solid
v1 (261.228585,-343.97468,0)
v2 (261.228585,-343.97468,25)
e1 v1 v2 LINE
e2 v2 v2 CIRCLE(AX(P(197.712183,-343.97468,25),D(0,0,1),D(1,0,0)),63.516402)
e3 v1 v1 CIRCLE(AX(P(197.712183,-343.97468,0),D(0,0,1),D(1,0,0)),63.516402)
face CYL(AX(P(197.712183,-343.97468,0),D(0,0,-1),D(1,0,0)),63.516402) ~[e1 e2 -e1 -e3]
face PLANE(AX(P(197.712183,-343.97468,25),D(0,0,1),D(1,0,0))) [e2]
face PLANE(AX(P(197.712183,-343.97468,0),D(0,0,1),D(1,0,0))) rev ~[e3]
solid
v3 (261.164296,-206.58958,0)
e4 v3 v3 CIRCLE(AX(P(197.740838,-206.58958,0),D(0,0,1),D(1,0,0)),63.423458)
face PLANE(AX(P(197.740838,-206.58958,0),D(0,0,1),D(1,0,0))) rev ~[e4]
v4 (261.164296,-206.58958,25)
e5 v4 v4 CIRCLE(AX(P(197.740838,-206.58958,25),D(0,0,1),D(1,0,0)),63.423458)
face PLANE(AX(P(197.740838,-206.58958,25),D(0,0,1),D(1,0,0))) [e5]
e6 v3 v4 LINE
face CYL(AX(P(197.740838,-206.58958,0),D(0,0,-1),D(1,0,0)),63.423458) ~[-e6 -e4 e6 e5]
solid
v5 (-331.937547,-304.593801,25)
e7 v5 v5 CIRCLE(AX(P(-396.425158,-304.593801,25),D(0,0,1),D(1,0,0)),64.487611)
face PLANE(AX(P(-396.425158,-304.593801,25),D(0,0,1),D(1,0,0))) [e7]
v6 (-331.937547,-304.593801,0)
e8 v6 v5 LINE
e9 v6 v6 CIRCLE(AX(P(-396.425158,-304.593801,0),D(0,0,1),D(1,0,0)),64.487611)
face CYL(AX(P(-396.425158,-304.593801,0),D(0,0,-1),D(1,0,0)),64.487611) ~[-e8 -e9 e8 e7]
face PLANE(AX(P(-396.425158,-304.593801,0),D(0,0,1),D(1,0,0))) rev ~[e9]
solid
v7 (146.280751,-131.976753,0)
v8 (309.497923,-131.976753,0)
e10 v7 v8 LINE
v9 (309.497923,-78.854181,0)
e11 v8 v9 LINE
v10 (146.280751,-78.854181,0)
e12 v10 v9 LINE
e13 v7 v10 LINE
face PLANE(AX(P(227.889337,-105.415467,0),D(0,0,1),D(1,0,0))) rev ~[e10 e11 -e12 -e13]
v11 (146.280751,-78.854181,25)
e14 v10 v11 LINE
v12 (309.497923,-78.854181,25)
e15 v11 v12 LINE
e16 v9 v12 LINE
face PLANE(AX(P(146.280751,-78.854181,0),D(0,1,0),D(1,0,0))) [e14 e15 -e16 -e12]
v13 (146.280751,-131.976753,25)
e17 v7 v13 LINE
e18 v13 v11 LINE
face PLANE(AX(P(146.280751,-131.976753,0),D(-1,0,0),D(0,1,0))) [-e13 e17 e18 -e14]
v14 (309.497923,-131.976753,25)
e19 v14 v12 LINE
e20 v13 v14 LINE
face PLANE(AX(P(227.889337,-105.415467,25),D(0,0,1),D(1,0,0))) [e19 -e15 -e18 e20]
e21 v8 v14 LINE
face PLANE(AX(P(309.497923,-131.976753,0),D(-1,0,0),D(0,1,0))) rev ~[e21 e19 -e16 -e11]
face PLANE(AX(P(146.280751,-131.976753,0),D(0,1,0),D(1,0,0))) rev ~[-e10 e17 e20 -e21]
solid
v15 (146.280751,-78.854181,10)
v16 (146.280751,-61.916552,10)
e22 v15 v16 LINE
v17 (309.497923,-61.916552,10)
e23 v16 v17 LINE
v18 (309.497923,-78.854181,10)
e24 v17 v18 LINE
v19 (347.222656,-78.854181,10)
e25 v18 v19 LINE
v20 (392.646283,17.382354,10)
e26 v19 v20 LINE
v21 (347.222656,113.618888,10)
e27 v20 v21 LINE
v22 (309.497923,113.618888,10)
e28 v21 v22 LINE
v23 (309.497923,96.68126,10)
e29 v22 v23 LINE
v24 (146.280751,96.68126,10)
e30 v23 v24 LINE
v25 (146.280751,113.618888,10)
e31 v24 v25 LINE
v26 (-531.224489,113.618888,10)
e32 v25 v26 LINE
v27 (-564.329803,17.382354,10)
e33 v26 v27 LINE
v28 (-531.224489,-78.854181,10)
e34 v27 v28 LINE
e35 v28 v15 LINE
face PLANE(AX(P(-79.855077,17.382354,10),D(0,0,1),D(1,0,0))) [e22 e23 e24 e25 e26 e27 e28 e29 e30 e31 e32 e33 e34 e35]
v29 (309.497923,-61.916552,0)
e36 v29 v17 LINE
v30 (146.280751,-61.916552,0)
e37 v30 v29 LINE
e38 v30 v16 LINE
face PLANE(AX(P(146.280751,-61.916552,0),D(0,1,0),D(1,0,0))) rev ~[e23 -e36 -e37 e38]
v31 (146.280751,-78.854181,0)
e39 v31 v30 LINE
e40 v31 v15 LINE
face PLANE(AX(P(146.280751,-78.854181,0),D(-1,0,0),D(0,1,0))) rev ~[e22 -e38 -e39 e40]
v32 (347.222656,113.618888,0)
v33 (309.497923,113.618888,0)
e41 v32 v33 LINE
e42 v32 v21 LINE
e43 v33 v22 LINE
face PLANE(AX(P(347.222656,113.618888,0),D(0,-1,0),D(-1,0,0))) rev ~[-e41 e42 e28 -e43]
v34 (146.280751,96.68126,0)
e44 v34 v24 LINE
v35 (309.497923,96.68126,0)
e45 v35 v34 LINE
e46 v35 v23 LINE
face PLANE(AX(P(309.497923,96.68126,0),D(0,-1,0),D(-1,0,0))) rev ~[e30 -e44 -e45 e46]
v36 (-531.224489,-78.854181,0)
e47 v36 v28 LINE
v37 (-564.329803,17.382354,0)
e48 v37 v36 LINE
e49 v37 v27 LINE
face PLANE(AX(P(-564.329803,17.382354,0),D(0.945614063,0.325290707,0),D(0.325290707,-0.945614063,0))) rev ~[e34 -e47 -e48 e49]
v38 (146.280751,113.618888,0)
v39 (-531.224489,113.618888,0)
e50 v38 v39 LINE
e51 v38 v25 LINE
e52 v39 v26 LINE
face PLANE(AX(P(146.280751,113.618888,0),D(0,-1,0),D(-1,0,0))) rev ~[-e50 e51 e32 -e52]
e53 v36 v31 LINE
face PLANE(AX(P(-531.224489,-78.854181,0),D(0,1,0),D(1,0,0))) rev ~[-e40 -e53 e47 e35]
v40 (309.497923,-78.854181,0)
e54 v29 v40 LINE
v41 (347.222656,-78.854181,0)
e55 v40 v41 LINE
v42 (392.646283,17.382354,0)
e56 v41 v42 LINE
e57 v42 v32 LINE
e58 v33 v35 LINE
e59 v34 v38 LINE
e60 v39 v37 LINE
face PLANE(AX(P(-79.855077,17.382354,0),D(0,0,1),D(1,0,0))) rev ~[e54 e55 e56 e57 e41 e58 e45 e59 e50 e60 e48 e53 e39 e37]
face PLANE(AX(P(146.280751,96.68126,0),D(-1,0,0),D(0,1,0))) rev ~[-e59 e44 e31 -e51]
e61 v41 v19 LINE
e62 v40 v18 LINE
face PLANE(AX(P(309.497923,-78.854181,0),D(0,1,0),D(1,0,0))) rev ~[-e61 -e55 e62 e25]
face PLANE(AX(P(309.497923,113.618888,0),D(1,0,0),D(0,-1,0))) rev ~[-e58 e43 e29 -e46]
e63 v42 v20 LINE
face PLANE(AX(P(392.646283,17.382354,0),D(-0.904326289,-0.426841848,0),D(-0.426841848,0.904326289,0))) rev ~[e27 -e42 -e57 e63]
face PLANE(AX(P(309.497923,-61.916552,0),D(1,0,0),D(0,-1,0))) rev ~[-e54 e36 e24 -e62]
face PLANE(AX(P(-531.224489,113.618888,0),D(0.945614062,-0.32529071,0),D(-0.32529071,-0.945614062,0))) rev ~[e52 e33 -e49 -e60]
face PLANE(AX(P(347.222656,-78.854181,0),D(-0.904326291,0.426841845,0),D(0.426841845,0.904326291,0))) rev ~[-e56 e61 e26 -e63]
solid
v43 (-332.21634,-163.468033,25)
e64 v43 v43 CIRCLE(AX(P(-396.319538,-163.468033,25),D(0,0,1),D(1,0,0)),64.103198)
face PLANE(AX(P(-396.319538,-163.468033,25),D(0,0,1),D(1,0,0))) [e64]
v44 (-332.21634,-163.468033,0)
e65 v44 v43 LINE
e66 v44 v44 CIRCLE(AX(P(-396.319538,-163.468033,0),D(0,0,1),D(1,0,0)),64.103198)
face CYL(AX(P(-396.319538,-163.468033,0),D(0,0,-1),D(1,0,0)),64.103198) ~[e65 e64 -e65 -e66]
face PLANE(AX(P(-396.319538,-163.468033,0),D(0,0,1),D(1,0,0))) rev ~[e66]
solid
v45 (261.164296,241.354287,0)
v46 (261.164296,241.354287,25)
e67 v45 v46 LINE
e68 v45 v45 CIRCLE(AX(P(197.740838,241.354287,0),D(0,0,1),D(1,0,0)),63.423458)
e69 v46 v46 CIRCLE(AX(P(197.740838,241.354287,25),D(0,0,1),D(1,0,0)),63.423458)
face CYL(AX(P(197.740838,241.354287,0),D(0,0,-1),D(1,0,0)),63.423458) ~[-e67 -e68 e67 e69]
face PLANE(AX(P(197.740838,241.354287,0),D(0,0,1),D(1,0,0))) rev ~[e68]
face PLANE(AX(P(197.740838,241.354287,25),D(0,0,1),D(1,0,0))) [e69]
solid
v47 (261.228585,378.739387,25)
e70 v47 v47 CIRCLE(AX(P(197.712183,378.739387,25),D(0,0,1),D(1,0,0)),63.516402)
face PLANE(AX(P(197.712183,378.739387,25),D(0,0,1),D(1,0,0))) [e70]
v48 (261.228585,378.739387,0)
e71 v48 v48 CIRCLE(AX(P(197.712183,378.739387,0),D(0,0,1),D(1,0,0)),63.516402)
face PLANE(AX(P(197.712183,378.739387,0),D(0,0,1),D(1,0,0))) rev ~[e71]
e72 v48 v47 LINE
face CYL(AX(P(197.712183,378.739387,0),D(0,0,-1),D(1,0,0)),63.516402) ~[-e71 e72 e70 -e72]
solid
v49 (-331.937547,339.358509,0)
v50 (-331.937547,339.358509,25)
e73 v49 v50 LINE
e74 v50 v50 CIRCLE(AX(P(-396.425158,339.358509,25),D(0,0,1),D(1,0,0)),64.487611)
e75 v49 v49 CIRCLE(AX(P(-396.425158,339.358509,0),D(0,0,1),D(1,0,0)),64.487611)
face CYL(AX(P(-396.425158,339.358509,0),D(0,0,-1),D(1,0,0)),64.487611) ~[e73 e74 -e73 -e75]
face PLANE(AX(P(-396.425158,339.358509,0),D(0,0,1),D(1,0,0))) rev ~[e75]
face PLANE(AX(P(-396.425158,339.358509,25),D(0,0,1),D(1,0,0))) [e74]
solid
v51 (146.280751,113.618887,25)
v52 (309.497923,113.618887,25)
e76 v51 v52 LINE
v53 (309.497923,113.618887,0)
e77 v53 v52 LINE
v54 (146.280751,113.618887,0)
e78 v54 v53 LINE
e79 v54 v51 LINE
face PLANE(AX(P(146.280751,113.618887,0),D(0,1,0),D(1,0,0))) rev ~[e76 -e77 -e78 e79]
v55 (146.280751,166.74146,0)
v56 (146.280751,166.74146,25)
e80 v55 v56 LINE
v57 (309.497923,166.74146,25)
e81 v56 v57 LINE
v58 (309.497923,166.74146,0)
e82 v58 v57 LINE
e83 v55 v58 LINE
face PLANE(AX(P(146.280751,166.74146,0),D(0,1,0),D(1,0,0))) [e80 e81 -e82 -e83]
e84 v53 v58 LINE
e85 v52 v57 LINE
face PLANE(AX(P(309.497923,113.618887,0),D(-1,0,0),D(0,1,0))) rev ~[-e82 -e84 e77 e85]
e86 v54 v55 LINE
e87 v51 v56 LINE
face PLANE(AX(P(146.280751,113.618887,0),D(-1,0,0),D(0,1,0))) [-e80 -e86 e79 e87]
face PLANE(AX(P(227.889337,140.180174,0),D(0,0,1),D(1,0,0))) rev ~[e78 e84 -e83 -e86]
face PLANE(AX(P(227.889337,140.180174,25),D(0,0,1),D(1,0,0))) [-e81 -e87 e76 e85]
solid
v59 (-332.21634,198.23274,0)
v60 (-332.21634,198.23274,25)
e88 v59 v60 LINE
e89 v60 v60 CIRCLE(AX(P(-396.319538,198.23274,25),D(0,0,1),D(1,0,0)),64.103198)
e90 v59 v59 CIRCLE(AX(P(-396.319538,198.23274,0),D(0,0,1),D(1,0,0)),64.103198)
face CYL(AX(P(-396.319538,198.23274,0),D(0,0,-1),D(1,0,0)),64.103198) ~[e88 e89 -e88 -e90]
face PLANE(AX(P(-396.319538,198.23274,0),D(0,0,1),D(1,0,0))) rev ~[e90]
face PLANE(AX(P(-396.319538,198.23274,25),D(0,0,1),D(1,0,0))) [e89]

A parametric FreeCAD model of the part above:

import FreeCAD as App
import Part
import Sketcher

V = App.Vector
Q = App.Units.Quantity


def add_polygon(sketch, points):
    """Adds a closed chain of lines whose ends are joined by coincident constraints."""
    first, n = sketch.GeometryCount, len(points)
    for a, b in zip(points, points[1:] + points[:1]):
        sketch.addGeometry(Part.LineSegment(App.Vector(*a, 0), App.Vector(*b, 0)), False)
    for i in range(n):
        sketch.addConstraint(Sketcher.Constraint("Coincident", first + i, 2, first + (i + 1) % n, 1))

doc = App.newDocument("Part")
body = doc.addObject("PartDesign::Body", "Body")
body.AllowCompound = True

# Sketch on XY plane
sketch1 = doc.addObject("Sketcher::SketchObject", "Sketch")
body.addObject(sketch1)
sketch1.AttachmentSupport = (doc.XY_Plane, [""])
sketch1.MapMode = "FlatFace"
sketch1.addGeometry(Part.Circle(V(-396, 198, 0), V(0, 0, 1), 64), False)  # 0
sketch1.addGeometry(Part.Circle(V(-396, 339, 0), V(0, 0, 1), 64), False)  # 1
sketch1.addGeometry(Part.Circle(V(198, 379, 0), V(0, 0, 1), 64), False)  # 2
sketch1.addGeometry(Part.Circle(V(198, 241, 0), V(0, 0, 1), 63), False)  # 3
sketch1.addGeometry(Part.Circle(V(198, -207, 0), V(0, 0, 1), 63), False)  # 4
sketch1.addGeometry(Part.Circle(V(198, -344, 0), V(0, 0, 1), 64), False)  # 5
sketch1.addGeometry(Part.Circle(V(-396, -163, 0), V(0, 0, 1), 64), False)  # 6
sketch1.addGeometry(Part.Circle(V(-396, -305, 0), V(0, 0, 1), 64), False)  # 7
add_polygon(sketch1, [(146, 167), (146, 114), (309, 114), (309, 167)])  # lines 8-11
add_polygon(sketch1, [(146, -79), (146, -132), (309, -132), (309, -79)])  # lines 12-15
sketch1.addConstraint([
    Sketcher.Constraint("Vertical", 8),
    Sketcher.Constraint("Horizontal", 9),
    Sketcher.Constraint("Vertical", 10),
    Sketcher.Constraint("Horizontal", 11),
    Sketcher.Constraint("Vertical", 12),
    Sketcher.Constraint("Horizontal", 13),
    Sketcher.Constraint("Vertical", 14),
    Sketcher.Constraint("Horizontal", 15),
    Sketcher.Constraint("Equal", 3, 4),
    Sketcher.Constraint("Equal", 2, 5),
    Sketcher.Constraint("Equal", 0, 6),
    Sketcher.Constraint("Equal", 1, 7),
    Sketcher.Constraint("Vertical", 3, 3, 4, 3),
    Sketcher.Constraint("Vertical", 2, 3, 5, 3),
    Sketcher.Constraint("Vertical", 0, 3, 6, 3),
    Sketcher.Constraint("Vertical", 1, 3, 7, 3),
    Sketcher.Constraint("Vertical", 11, 2, 12, 2),
    Sketcher.Constraint("Vertical", 10, 2, 13, 2),
    Sketcher.Constraint("Equal", 10, 12),
    Sketcher.Constraint("Diameter", 1, Q("128.975222 mm")),
    Sketcher.Constraint("Diameter", 0, Q("128.206396 mm")),
    Sketcher.Constraint("Diameter", 2, Q("127.032804 mm")),
    Sketcher.Constraint("Diameter", 3, Q("126.846916 mm")),
    Sketcher.Constraint("DistanceX", 9, 1, 9, 2, Q("163.217172 mm")),
    Sketcher.Constraint("DistanceY", 7, 3, -1, 1, Q("304.593801 mm")),
    Sketcher.Constraint("DistanceY", 3, 3, 2, 3, Q("137.3851 mm")),
    Sketcher.Constraint("DistanceY", 5, 3, 4, 3, Q("137.3851 mm")),
    Sketcher.Constraint("DistanceY", 8, 2, 3, 3, Q("127.735399 mm")),
    Sketcher.Constraint("DistanceY", 4, 3, 14, 2, Q("127.735399 mm")),
    Sketcher.Constraint("DistanceY", 8, 2, 8, 1, Q("53.122573 mm")),
    Sketcher.Constraint("DistanceX", 0, 3, -1, 1, Q("396.319538 mm")),
    Sketcher.Constraint("DistanceY", -1, 1, 0, 3, Q("198.23274 mm")),
    Sketcher.Constraint("DistanceX", 1, 3, -1, 1, Q("396.425158 mm")),
    Sketcher.Constraint("DistanceY", -1, 1, 1, 3, Q("339.358509 mm")),
    Sketcher.Constraint("DistanceX", -1, 1, 3, 3, Q("197.740838 mm")),
    Sketcher.Constraint("DistanceY", 4, 3, -1, 1, Q("206.58958 mm")),
    Sketcher.Constraint("DistanceX", -1, 1, 8, 2, Q("146.280751 mm")),
    Sketcher.Constraint("DistanceY", -1, 1, 10, 2, Q("166.74146 mm")),
    Sketcher.Constraint("DistanceX", 1, 3, 2, 3, Q("594.137341 mm")),
    Sketcher.Constraint("DistanceY", 6, 3, 1, 3, Q("502.826542 mm")),
])
pad1 = doc.addObject("PartDesign::Pad", "Pad")
body.addObject(pad1)
pad1.Profile = sketch1
pad1.Length = 25
body2 = doc.addObject("PartDesign::Body", "Body001")

# Sketch on XY plane
sketch2 = doc.addObject("Sketcher::SketchObject", "Sketch001")
body2.addObject(sketch2)
sketch2.AttachmentSupport = (doc.getObject("XY_Plane001"), [""])
sketch2.MapMode = "FlatFace"
add_polygon(sketch2, [(146, 114), (-531, 114), (-564, 17), (-531, -79), (146, -79), (146, -62), (309, -62), (309, -79), (347, -79), (393, 17), (347, 114), (309, 114), (309, 97), (146, 97)])  # lines 0-13
sketch2.addConstraint([
    Sketcher.Constraint("Horizontal", 0),
    Sketcher.Constraint("Horizontal", 3),
    Sketcher.Constraint("Vertical", 4),
    Sketcher.Constraint("Horizontal", 5),
    Sketcher.Constraint("Vertical", 6),
    Sketcher.Constraint("Horizontal", 7),
    Sketcher.Constraint("Horizontal", 10),
    Sketcher.Constraint("Vertical", 11),
    Sketcher.Constraint("Horizontal", 12),
    Sketcher.Constraint("Vertical", 13),
    Sketcher.Constraint("Horizontal", 3, 2, 6, 2),
    Sketcher.Constraint("Horizontal", 1, 2, 8, 2),
    Sketcher.Constraint("Horizontal", 0, 2, 9, 2),
    Sketcher.Constraint("Vertical", 0, 2, 2, 2),
    Sketcher.Constraint("Vertical", 7, 2, 9, 2),
    Sketcher.Constraint("Vertical", 6, 2, 10, 2),
    Sketcher.Constraint("Vertical", 4, 2, 12, 2),
    Sketcher.Constraint("Equal", 6, 11),
    Sketcher.Constraint("Equal", 1, 2),
    Sketcher.Constraint("DistanceX", 0, 2, 0, 1, Q("677.50524 mm")),
    Sketcher.Constraint("DistanceX", 5, 1, 5, 2, Q("163.217172 mm")),
    Sketcher.Constraint("DistanceY", 4, 1, 4, 2, Q("16.937629 mm")),
    Sketcher.Constraint("Distance", 1, Q("101.771471 mm")),
    Sketcher.Constraint("DistanceX", 7, 1, 7, 2, Q("37.724733 mm")),
    Sketcher.Constraint("DistanceX", 0, 2, -1, 1, Q("531.224489 mm")),
    Sketcher.Constraint("DistanceY", -1, 1, 0, 2, Q("113.618888 mm")),
    Sketcher.Constraint("DistanceY", 2, 2, -1, 1, Q("78.854181 mm")),
    Sketcher.Constraint("DistanceX", 5, 2, 8, 2, Q("83.14836 mm")),
])
pad2 = doc.addObject("PartDesign::Pad", "Pad001")
body2.addObject(pad2)
pad2.Profile = sketch2
pad2.Length = 10

doc.recompute()
